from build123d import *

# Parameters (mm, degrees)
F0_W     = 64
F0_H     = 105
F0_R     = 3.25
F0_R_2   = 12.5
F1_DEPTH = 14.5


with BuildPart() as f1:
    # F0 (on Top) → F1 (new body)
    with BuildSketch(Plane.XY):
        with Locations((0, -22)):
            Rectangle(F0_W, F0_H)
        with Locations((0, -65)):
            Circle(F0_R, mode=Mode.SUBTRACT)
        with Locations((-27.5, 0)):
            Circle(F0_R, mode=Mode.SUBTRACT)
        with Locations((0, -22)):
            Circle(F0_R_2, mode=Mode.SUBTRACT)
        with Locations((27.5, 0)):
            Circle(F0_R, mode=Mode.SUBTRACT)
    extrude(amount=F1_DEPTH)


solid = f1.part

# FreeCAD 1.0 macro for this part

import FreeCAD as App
import Part
import Sketcher

doc = App.newDocument("Part")
params = doc.addObject("Spreadsheet::Sheet", "Params")
for row, (alias, value) in enumerate([
    ("sketch1_diameter", "25 mm"),
    ("sketch1_diameter2", "6.5 mm"),
    ("sketch1_width", "64 mm"),
    ("sketch1_height", "105 mm"),
    ("pad1_length", "14.5 mm"),
], start=1):
    params.set(f"A{row}", alias)
    params.set(f"B{row}", "=" + value)
    params.setAlias(f"B{row}", alias)

body = doc.addObject("PartDesign::Body", "Body")

# Sketch on XY plane
sketch1 = body.newObject("Sketcher::SketchObject", "Sketch")
sketch1.AttachmentSupport = (doc.getObject("XY_Plane"), [""])
sketch1.MapMode = "FlatFace"
sketch1.addGeometry([
    Part.LineSegment(App.Vector(-32, 30.5, 0), App.Vector(-32, -74.5, 0)),  # 0
    Part.LineSegment(App.Vector(-32, -74.5, 0), App.Vector(32, -74.5, 0)),  # 1
    Part.LineSegment(App.Vector(32, -74.5, 0), App.Vector(32, 30.5, 0)),  # 2
    Part.LineSegment(App.Vector(32, 30.5, 0), App.Vector(-32, 30.5, 0)),  # 3
    Part.Circle(App.Vector(0, -65, 0), App.Vector(0, 0, 1), 3.2),  # 4
    Part.Circle(App.Vector(-27.5, 0, 0), App.Vector(0, 0, 1), 3.2),  # 5
    Part.Circle(App.Vector(0, -22, 0), App.Vector(0, 0, 1), 12.5),  # 6
    Part.Circle(App.Vector(27.5, 0, 0), App.Vector(0, 0, 1), 3.2),  # 7
], False)
sketch1.addConstraint([
    Sketcher.Constraint("Coincident", 0, 2, 1, 1),
    Sketcher.Constraint("Coincident", 1, 2, 2, 1),
    Sketcher.Constraint("Coincident", 2, 2, 3, 1),
    Sketcher.Constraint("Coincident", 3, 2, 0, 1),
    Sketcher.Constraint("Vertical", 0),
    Sketcher.Constraint("Horizontal", 1),
    Sketcher.Constraint("Vertical", 2),
    Sketcher.Constraint("Horizontal", 3),
    Sketcher.Constraint("Equal", 4, 5),
    Sketcher.Constraint("Equal", 5, 7),
    Sketcher.Constraint("Symmetric", 5, 3, 7, 3, -1, 1),
    Sketcher.Constraint("PointOnObject", 4, 3, -2),
    Sketcher.Constraint("PointOnObject", 5, 3, -1),
    Sketcher.Constraint("PointOnObject", 6, 3, -2),
    Sketcher.Constraint("Diameter", 6, 25.0),
    Sketcher.Constraint("Diameter", 4, 6.5),
    Sketcher.Constraint("DistanceX", 1, 1, 1, 2, 64.0),
    Sketcher.Constraint("DistanceY", 0, 2, 0, 1, 105.0),
    Sketcher.Constraint("DistanceY", 4, 3, -1, 1, 65.0),
    Sketcher.Constraint("DistanceY", 6, 3, -1, 1, 22.0),
    Sketcher.Constraint("DistanceX", 0, 2, -1, 1, 32.0),
    Sketcher.Constraint("DistanceX", 5, 3, 7, 3, 55.0),
    Sketcher.Constraint("DistanceY", 0, 2, -1, 1, 74.5),
])
sketch1.setExpression("Constraints[14]", "Params.sketch1_diameter")
sketch1.setExpression("Constraints[15]", "Params.sketch1_diameter2")
sketch1.setExpression("Constraints[16]", "Params.sketch1_width")
sketch1.setExpression("Constraints[17]", "Params.sketch1_height")
pad1 = body.newObject("PartDesign::Pad", "Pad")
pad1.Profile = sketch1
pad1.setExpression("Length", "Params.pad1_length")

doc.recompute()
